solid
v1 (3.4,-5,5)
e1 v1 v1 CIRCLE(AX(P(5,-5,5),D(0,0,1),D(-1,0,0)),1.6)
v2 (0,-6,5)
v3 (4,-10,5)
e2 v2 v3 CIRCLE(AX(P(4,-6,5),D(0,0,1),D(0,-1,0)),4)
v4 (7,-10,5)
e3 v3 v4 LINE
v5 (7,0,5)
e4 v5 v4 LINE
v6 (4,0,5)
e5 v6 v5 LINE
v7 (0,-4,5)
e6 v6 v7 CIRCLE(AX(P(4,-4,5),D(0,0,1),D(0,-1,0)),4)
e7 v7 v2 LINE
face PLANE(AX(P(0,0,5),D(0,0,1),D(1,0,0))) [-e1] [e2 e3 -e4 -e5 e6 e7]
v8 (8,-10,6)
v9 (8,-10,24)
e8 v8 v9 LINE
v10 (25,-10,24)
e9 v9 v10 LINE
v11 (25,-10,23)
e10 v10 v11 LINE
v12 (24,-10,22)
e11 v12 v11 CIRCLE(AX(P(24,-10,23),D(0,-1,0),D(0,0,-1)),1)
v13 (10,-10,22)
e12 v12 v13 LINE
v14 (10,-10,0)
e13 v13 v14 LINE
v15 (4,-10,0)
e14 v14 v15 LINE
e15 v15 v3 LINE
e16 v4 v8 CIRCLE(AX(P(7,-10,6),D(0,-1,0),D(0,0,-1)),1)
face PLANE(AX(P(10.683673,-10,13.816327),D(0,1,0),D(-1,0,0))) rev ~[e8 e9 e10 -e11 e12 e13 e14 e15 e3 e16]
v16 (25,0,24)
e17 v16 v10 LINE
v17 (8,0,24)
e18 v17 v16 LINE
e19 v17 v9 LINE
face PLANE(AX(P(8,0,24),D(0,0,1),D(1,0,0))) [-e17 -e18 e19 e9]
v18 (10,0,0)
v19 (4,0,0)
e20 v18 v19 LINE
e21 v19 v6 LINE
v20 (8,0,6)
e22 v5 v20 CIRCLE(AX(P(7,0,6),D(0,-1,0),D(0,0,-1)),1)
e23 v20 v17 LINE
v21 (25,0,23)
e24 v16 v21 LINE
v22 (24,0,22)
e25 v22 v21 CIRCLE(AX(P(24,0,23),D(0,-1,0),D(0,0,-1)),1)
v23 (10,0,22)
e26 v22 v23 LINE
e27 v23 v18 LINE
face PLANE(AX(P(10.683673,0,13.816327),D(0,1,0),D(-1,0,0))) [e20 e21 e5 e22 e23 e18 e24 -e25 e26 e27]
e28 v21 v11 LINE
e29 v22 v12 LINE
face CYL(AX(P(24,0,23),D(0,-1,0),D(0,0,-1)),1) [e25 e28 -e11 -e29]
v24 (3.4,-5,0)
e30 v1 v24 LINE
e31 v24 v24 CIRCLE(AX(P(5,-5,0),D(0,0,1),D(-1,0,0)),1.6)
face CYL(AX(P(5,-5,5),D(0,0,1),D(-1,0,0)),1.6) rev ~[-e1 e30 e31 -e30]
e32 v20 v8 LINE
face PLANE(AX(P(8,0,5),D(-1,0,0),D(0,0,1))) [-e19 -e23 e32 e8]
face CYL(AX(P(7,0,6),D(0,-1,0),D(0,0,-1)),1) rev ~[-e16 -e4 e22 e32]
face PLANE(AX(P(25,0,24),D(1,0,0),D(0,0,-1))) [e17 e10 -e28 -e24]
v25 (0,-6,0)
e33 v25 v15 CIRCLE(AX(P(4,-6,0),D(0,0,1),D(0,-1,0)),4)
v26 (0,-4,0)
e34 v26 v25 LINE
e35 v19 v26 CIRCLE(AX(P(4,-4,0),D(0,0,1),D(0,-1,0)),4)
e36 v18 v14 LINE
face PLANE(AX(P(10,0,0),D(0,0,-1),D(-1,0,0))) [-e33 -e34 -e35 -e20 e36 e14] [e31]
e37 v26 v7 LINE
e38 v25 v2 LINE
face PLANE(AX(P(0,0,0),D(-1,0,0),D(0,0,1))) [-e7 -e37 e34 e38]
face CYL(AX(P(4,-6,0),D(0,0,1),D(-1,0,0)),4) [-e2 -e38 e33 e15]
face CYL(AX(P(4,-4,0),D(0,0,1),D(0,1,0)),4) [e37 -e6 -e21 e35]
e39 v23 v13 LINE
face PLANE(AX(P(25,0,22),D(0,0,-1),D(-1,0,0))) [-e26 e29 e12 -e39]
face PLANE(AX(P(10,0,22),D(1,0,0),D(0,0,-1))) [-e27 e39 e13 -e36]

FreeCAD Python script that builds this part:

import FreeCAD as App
import Part
import Sketcher

V = App.Vector
Q = App.Units.Quantity


def edges_at(feature, points):
    """Names of the edges that pass closest to the given points."""
    edges = feature.Shape.Edges
    near = lambda p: min(range(len(edges)), key=lambda i: edges[i].distToShape(Part.Vertex(*p))[0])
    return sorted({f"Edge{near(p) + 1}" for p in points})

doc = App.newDocument("Part")
body = doc.addObject("PartDesign::Body", "Body")

# Sketch on XZ plane
sketch1 = body.newObject("Sketcher::SketchObject", "Sketch")
sketch1.AttachmentSupport = (doc.getObject("XZ_Plane"), [""])
sketch1.MapMode = "FlatFace"
sketch1.addGeometry([
    Part.LineSegment(V(0, 5, 0), V(0, 0, 0)),  # 0
    Part.LineSegment(V(0, 0, 0), V(10, 0, 0)),  # 1
    Part.LineSegment(V(10, 0, 0), V(10, 22, 0)),  # 2
    Part.LineSegment(V(10, 22, 0), V(25, 22, 0)),  # 3
    Part.LineSegment(V(25, 22, 0), V(25, 24, 0)),  # 4
    Part.LineSegment(V(25, 24, 0), V(8, 24, 0)),  # 5
    Part.LineSegment(V(8, 24, 0), V(8, 5, 0)),  # 6
    Part.LineSegment(V(8, 5, 0), V(0, 5, 0)),  # 7
], False)
sketch1.addConstraint([
    Sketcher.Constraint("Coincident", 0, 2, 1, 1),
    Sketcher.Constraint("Coincident", 1, 2, 2, 1),
    Sketcher.Constraint("Coincident", 2, 2, 3, 1),
    Sketcher.Constraint("Coincident", 3, 2, 4, 1),
    Sketcher.Constraint("Coincident", 4, 2, 5, 1),
    Sketcher.Constraint("Coincident", 5, 2, 6, 1),
    Sketcher.Constraint("Coincident", 6, 2, 7, 1),
    Sketcher.Constraint("Coincident", 7, 2, 0, 1),
    Sketcher.Constraint("Vertical", 0),
    Sketcher.Constraint("Horizontal", 1),
    Sketcher.Constraint("Vertical", 2),
    Sketcher.Constraint("Horizontal", 3),
    Sketcher.Constraint("Vertical", 4),
    Sketcher.Constraint("Horizontal", 5),
    Sketcher.Constraint("Vertical", 6),
    Sketcher.Constraint("Horizontal", 7),
    Sketcher.Constraint("Coincident", 0, 2, -1, 1),
    Sketcher.Constraint("DistanceX", 1, 1, 1, 2, Q("10 mm")),
    Sketcher.Constraint("DistanceX", 3, 1, 3, 2, Q("15 mm")),
    Sketcher.Constraint("DistanceX", 5, 2, 5, 1, Q("17 mm")),
    Sketcher.Constraint("DistanceY", 0, 2, 0, 1, Q("5 mm")),
    Sketcher.Constraint("DistanceY", 2, 1, 2, 2, Q("22 mm")),
    Sketcher.Constraint("DistanceY", 4, 1, 4, 2, Q("2 mm")),
])
pad1 = body.newObject("PartDesign::Pad", "Pad")
pad1.Profile = sketch1
pad1.Length = 10

# Sketch on XY plane
sketch2 = body.newObject("Sketcher::SketchObject", "Sketch001")
sketch2.AttachmentSupport = (doc.getObject("XY_Plane"), [""])
sketch2.MapMode = "FlatFace"
sketch2.AttachmentOffset = App.Placement(V(0, 0, 5), App.Rotation())
sketch2.addGeometry(Part.Circle(V(5, -5, 0), V(0, 0, 1), 1.6), False)
sketch2.addConstraint([
    Sketcher.Constraint("Diameter", 0, Q("3.2 mm")),
    Sketcher.Constraint("DistanceX", -1, 1, 0, 3, Q("5 mm")),
    Sketcher.Constraint("DistanceY", 0, 3, -1, 1, Q("5 mm")),
])
pocket1 = body.newObject("PartDesign::Pocket", "Pocket")
pocket1.Profile = sketch2
pocket1.Length = 5
doc.recompute()

fillet = body.newObject("PartDesign::Fillet", "Fillet")
fillet.Base = (pocket1, edges_at(pocket1, [(8, -5, 5)]))
fillet.Radius = 1
doc.recompute()

fillet2 = body.newObject("PartDesign::Fillet", "Fillet001")
fillet2.Base = (fillet, edges_at(fillet, [(0, 0, 2.5), (0, -10, 2.5)]))
fillet2.Radius = 4
doc.recompute()

fillet3 = body.newObject("PartDesign::Fillet", "Fillet002")
fillet3.Base = (fillet2, edges_at(fillet2, [(25, -5, 22)]))
fillet3.Radius = 1

doc.recompute()
